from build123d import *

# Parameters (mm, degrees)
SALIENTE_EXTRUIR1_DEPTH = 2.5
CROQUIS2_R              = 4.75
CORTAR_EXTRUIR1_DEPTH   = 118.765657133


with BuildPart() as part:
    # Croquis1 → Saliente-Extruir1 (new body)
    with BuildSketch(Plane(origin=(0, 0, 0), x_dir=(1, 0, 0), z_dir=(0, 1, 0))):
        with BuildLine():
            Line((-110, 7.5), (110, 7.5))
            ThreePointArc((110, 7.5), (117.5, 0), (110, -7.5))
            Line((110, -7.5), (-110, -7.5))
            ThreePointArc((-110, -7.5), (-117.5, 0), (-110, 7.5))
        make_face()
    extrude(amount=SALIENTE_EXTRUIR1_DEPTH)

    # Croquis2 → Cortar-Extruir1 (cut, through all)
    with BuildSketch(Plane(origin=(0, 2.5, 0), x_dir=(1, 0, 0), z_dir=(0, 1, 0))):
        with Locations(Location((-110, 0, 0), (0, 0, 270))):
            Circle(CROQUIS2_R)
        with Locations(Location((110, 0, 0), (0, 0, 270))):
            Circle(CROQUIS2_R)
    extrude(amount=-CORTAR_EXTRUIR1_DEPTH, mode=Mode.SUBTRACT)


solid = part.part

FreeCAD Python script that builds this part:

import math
import FreeCAD as App
import Part
import Sketcher

V = App.Vector

doc = App.newDocument("Part")
body = doc.addObject("PartDesign::Body", "Body")

# Sketch on XZ plane
sketch1 = doc.addObject("Sketcher::SketchObject", "Sketch")
body.addObject(sketch1)
sketch1.AttachmentSupport = (doc.XZ_Plane, [""])
sketch1.MapMode = "FlatFace"
sketch1.addGeometry([
    Part.LineSegment(V(110, -8, 0), V(-110, -8, 0)),
    Part.ArcOfCircle(Part.Circle(V(-110, 0, 0), V(0, 0, 1), 8), math.radians(90), math.radians(270)),
    Part.LineSegment(V(-110, 8, 0), V(110, 8, 0)),
    Part.ArcOfCircle(Part.Circle(V(110, 0, 0), V(0, 0, 1), 8), math.radians(-90), math.radians(90)),
], False)
sketch1.addConstraint([
    Sketcher.Constraint("Tangent", 0, 2, 1, 2),
    Sketcher.Constraint("Tangent", 1, 1, 2, 1),
    Sketcher.Constraint("Tangent", 2, 2, 3, 2),
    Sketcher.Constraint("Tangent", 3, 1, 0, 1),
    Sketcher.Constraint("Horizontal", 0),
    Sketcher.Constraint("Horizontal", 2),
    Sketcher.Constraint("Symmetric", 1, 3, 3, 3, -1, 1),
    Sketcher.Constraint("Radius", 1, 7.5),
    Sketcher.Constraint("DistanceX", 0, 2, 0, 1, 220.0),
])
pad1 = doc.addObject("PartDesign::Pad", "Pad")
body.addObject(pad1)
pad1.Profile = sketch1
pad1.Length = 2.5
pad1.Reversed = True

# Sketch on XZ plane
sketch2 = doc.addObject("Sketcher::SketchObject", "Sketch001")
body.addObject(sketch2)
sketch2.AttachmentSupport = (doc.XZ_Plane, [""])
sketch2.MapMode = "FlatFace"
sketch2.AttachmentOffset = App.Placement(V(0, 0, -2.5), App.Rotation())
sketch2.addGeometry([
    Part.Circle(V(-110, 0, 0), V(0, 0, 1), 4.8),
    Part.Circle(V(110, 0, 0), V(0, 0, 1), 4.8),
], False)
sketch2.addConstraint([
    Sketcher.Constraint("Equal", 0, 1),
    Sketcher.Constraint("Symmetric", 0, 3, 1, 3, -1, 1),
    Sketcher.Constraint("PointOnObject", 0, 3, -1),
    Sketcher.Constraint("Diameter", 0, 9.5),
    Sketcher.Constraint("DistanceX", 0, 3, -1, 1, 110.0),
])
pocket1 = doc.addObject("PartDesign::Pocket", "Pocket")
body.addObject(pocket1)
pocket1.Profile = sketch2
pocket1.Type = "ThroughAll"
pocket1.Reversed = True

doc.recompute()
